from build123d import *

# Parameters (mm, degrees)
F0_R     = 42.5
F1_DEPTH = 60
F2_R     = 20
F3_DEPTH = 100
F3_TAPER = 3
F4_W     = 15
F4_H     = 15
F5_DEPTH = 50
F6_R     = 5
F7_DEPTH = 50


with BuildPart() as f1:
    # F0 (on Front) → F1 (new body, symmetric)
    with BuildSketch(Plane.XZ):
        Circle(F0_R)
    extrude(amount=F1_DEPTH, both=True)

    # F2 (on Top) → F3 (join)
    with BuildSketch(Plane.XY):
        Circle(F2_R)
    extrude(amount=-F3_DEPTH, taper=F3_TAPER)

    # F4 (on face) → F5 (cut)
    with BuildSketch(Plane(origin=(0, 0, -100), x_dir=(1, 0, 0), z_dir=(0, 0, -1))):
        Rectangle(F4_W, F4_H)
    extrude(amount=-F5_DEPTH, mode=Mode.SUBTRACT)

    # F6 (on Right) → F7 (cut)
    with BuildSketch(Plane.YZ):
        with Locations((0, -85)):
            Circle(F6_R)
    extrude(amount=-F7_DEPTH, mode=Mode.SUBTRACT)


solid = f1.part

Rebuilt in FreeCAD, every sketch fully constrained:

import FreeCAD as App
import Part
import Sketcher

V = App.Vector
Q = App.Units.Quantity

doc = App.newDocument("Part")
params = doc.addObject("Spreadsheet::Sheet", "Params")
for row, (alias, value) in enumerate([
    ("sketch1_diameter", "85 mm"),
    ("pad1_length", "120 mm"),
    ("sketch2_diameter", "40 mm"),
    ("pad2_length", "100 mm"),
    ("pad2_taper", "-3 deg"),
    ("sketch3_width", "15 mm"),
    ("pocket1_length", "50 mm"),
    ("sketch4_diameter", "10 mm"),
    ("pocket2_length", "50 mm"),
], start=1):
    params.set(f"A{row}", alias)
    params.set(f"B{row}", "=" + value)
    params.setAlias(f"B{row}", alias)

body = doc.addObject("PartDesign::Body", "Body")

sketch1 = body.newObject("Sketcher::SketchObject", "Sketch")
sketch1.AttachmentSupport = (doc.getObject("XZ_Plane"), [""])
sketch1.MapMode = "FlatFace"
sketch1.addGeometry(Part.Circle(V(0, 0, 0), V(0, 0, 1), 42), False)
sketch1.addConstraint([
    Sketcher.Constraint("Coincident", 0, 3, -1, 1),
    Sketcher.Constraint("Diameter", 0, Q("85 mm")),
])
sketch1.setExpression("Constraints[1]", "Params.sketch1_diameter")
pad1 = body.newObject("PartDesign::Pad", "Pad")
pad1.Profile = sketch1
pad1.setExpression("Length", "Params.pad1_length")
pad1.Midplane = True

sketch2 = body.newObject("Sketcher::SketchObject", "Sketch001")
sketch2.AttachmentSupport = (doc.getObject("XY_Plane"), [""])
sketch2.MapMode = "FlatFace"
sketch2.addGeometry(Part.Circle(V(0, 0, 0), V(0, 0, 1), 20), False)
sketch2.addConstraint([
    Sketcher.Constraint("Coincident", 0, 3, -1, 1),
    Sketcher.Constraint("Diameter", 0, Q("40 mm")),
])
sketch2.setExpression("Constraints[1]", "Params.sketch2_diameter")
pad2 = body.newObject("PartDesign::Pad", "Pad001")
pad2.Profile = sketch2
pad2.setExpression("Length", "Params.pad2_length")
pad2.Reversed = True
pad2.setExpression("TaperAngle", "Params.pad2_taper")

sketch3 = body.newObject("Sketcher::SketchObject", "Sketch002")
sketch3.AttachmentSupport = (doc.getObject("XY_Plane"), [""])
sketch3.MapMode = "FlatFace"
sketch3.AttachmentOffset = App.Placement(V(0, 0, -100), App.Rotation())
sketch3.addGeometry([
    Part.LineSegment(V(-8, -8, 0), V(-8, 8, 0)),
    Part.LineSegment(V(-8, 8, 0), V(8, 8, 0)),
    Part.LineSegment(V(8, 8, 0), V(8, -8, 0)),
    Part.LineSegment(V(8, -8, 0), V(-8, -8, 0)),
], False)
sketch3.addConstraint([
    Sketcher.Constraint("Coincident", 0, 2, 1, 1),
    Sketcher.Constraint("Coincident", 1, 2, 2, 1),
    Sketcher.Constraint("Coincident", 2, 2, 3, 1),
    Sketcher.Constraint("Coincident", 3, 2, 0, 1),
    Sketcher.Constraint("Vertical", 0),
    Sketcher.Constraint("Horizontal", 1),
    Sketcher.Constraint("Vertical", 2),
    Sketcher.Constraint("Horizontal", 3),
    Sketcher.Constraint("Symmetric", 0, 2, 2, 2, -1, 1),
    Sketcher.Constraint("Equal", 3, 0),
    Sketcher.Constraint("DistanceX", 1, 1, 1, 2, Q("15 mm")),
])
sketch3.setExpression("Constraints[10]", "Params.sketch3_width")
pocket1 = body.newObject("PartDesign::Pocket", "Pocket")
pocket1.Profile = sketch3
pocket1.setExpression("Length", "Params.pocket1_length")
pocket1.Reversed = True

sketch4 = body.newObject("Sketcher::SketchObject", "Sketch003")
sketch4.AttachmentSupport = (doc.getObject("YZ_Plane"), [""])
sketch4.MapMode = "FlatFace"
sketch4.addGeometry(Part.Circle(V(0, -85, 0), V(0, 0, 1), 5), False)
sketch4.addConstraint([
    Sketcher.Constraint("PointOnObject", 0, 3, -2),
    Sketcher.Constraint("Diameter", 0, Q("10 mm")),
    Sketcher.Constraint("DistanceY", 0, 3, -1, 1, Q("85 mm")),
])
sketch4.setExpression("Constraints[1]", "Params.sketch4_diameter")
pocket2 = body.newObject("PartDesign::Pocket", "Pocket001")
pocket2.Profile = sketch4
pocket2.setExpression("Length", "Params.pocket2_length")

doc.recompute()
